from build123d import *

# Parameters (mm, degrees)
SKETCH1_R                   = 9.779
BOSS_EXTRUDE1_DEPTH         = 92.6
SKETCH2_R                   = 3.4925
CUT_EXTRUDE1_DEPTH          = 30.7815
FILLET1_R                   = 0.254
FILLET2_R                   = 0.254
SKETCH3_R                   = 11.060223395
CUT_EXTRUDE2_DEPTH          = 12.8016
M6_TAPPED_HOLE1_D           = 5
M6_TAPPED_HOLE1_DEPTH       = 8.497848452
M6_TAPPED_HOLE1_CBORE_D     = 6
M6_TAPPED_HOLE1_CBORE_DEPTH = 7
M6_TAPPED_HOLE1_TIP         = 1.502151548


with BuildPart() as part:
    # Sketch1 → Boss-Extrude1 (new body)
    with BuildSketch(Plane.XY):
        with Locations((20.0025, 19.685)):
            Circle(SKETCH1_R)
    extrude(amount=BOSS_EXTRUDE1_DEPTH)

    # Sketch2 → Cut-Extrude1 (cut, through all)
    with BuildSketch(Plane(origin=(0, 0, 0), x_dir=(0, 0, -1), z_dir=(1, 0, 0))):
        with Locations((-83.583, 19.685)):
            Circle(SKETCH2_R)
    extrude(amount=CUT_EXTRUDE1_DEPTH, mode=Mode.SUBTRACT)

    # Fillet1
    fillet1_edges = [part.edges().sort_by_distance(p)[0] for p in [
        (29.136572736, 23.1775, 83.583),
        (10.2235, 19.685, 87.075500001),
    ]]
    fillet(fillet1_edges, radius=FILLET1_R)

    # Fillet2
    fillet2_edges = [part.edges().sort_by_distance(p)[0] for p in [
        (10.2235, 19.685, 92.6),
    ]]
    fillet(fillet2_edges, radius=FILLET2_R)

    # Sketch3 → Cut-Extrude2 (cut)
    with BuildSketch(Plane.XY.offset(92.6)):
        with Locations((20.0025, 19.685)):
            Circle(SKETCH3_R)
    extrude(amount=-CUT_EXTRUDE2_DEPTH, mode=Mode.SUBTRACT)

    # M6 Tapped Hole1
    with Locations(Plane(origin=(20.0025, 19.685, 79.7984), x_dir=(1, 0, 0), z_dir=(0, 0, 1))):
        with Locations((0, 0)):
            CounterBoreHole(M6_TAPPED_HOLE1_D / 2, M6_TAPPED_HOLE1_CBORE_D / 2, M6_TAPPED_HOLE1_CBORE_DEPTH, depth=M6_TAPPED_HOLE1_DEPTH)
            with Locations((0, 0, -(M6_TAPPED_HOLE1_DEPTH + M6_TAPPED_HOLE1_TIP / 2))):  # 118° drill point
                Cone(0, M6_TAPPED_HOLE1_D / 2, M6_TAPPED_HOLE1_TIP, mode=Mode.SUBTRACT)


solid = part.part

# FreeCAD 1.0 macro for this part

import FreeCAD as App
import Part
import Sketcher
from FreeCAD import Vector
Q = App.Units.Quantity


def edges_at(feature, points):
    """Names of the edges that pass closest to the given points."""
    edges = feature.Shape.Edges
    near = lambda p: min(range(len(edges)), key=lambda i: edges[i].distToShape(Part.Vertex(*p))[0])
    return sorted({f"Edge{near(p) + 1}" for p in points})

doc = App.newDocument("Part")
body = doc.addObject("PartDesign::Body", "Body")

# Sketch on XY plane
sketch1 = doc.addObject("Sketcher::SketchObject", "Sketch")
body.addObject(sketch1)
sketch1.AttachmentSupport = (doc.XY_Plane, [""])
sketch1.MapMode = "FlatFace"
sketch1.addGeometry(Part.Circle(Vector(20, 20, 0), Vector(0, 0, 1), 10), False)
sketch1.addConstraint([
    Sketcher.Constraint("Diameter", 0, Q("0.77 in")),
    Sketcher.Constraint("DistanceY", -1, 1, 0, 3, Q("0.775 in")),
    Sketcher.Constraint("DistanceX", -1, 1, 0, 3, Q("0.7875 in")),
])
pad1 = doc.addObject("PartDesign::Pad", "Pad")
body.addObject(pad1)
pad1.Profile = sketch1
pad1.Length = 92.6

# Sketch on YZ plane
sketch2 = doc.addObject("Sketcher::SketchObject", "Sketch001")
body.addObject(sketch2)
sketch2.AttachmentSupport = (doc.YZ_Plane, [""])
sketch2.MapMode = "FlatFace"
sketch2.addGeometry(Part.Circle(Vector(19.7, 83.6, 0), Vector(0, 0, 1), 3.5), False)
sketch2.addConstraint([
    Sketcher.Constraint("Diameter", 0, Q("0.275 in")),
    Sketcher.Constraint("DistanceX", -1, 1, 0, 3, Q("0.775 in")),
    Sketcher.Constraint("DistanceY", -1, 1, 0, 3, Q("83.583 mm")),
])
pocket1 = doc.addObject("PartDesign::Pocket", "Pocket")
body.addObject(pocket1)
pocket1.Profile = sketch2
pocket1.Type = "ThroughAll"
pocket1.Reversed = True
doc.recompute()

fillet = doc.addObject("PartDesign::Fillet", "Fillet")
body.addObject(fillet)
fillet.Base = (pocket1, edges_at(pocket1, [(29.137, 23.177, 83.583), (10.223, 19.685, 87.076)]))
fillet.Radius = Q("0.01 in")
doc.recompute()

fillet2 = doc.addObject("PartDesign::Fillet", "Fillet001")
body.addObject(fillet2)
fillet2.Base = (fillet, edges_at(fillet, [(10.223, 19.685, 92.6)]))
fillet2.Radius = Q("0.01 in")

# Sketch on XY plane
sketch3 = doc.addObject("Sketcher::SketchObject", "Sketch002")
body.addObject(sketch3)
sketch3.AttachmentSupport = (doc.XY_Plane, [""])
sketch3.MapMode = "FlatFace"
sketch3.AttachmentOffset = App.Placement(Vector(0, 0, 92.6), App.Rotation())
sketch3.addGeometry(Part.Circle(Vector(20, 20, 0), Vector(0, 0, 1), 11), False)
sketch3.addConstraint([
    Sketcher.Constraint("DistanceY", -1, 1, 0, 3, Q("0.775 in")),
    Sketcher.Constraint("Diameter", 0, Q("22.120447 mm")),
    Sketcher.Constraint("DistanceX", -1, 1, 0, 3, Q("0.7875 in")),
])
pocket2 = doc.addObject("PartDesign::Pocket", "Pocket001")
body.addObject(pocket2)
pocket2.Profile = sketch3
pocket2.Length = Q("0.504 in")

# Sketch on XY plane
sketch4 = doc.addObject("Sketcher::SketchObject", "Sketch003")
body.addObject(sketch4)
sketch4.AttachmentSupport = (doc.XY_Plane, [""])
sketch4.MapMode = "FlatFace"
sketch4.AttachmentOffset = App.Placement(Vector(0, 0, 79.7984), App.Rotation())
sketch4.addGeometry(Part.Circle(Vector(20, 19.7, 0), Vector(0, 0, 1), 2.5), False)
sketch4.addConstraint([
    Sketcher.Constraint("Diameter", 0, Q("5 mm")),
    Sketcher.Constraint("DistanceY", -1, 1, 0, 3, Q("0.775 in")),
    Sketcher.Constraint("DistanceX", -1, 1, 0, 3, Q("0.7875 in")),
])
doc.recompute()
hole = doc.addObject("PartDesign::Hole", "Hole")
body.addObject(hole)
hole.Profile = sketch4
hole.ThreadType = "None"
hole.Diameter = 5
hole.DepthType = "Dimension"
hole.Depth = 8.497848
hole.DrillPoint = "Angled"
hole.DrillPointAngle = 118
hole.HoleCutType = "Counterbore"
hole.HoleCutDiameter = 6
hole.HoleCutDepth = 7

doc.recompute()
